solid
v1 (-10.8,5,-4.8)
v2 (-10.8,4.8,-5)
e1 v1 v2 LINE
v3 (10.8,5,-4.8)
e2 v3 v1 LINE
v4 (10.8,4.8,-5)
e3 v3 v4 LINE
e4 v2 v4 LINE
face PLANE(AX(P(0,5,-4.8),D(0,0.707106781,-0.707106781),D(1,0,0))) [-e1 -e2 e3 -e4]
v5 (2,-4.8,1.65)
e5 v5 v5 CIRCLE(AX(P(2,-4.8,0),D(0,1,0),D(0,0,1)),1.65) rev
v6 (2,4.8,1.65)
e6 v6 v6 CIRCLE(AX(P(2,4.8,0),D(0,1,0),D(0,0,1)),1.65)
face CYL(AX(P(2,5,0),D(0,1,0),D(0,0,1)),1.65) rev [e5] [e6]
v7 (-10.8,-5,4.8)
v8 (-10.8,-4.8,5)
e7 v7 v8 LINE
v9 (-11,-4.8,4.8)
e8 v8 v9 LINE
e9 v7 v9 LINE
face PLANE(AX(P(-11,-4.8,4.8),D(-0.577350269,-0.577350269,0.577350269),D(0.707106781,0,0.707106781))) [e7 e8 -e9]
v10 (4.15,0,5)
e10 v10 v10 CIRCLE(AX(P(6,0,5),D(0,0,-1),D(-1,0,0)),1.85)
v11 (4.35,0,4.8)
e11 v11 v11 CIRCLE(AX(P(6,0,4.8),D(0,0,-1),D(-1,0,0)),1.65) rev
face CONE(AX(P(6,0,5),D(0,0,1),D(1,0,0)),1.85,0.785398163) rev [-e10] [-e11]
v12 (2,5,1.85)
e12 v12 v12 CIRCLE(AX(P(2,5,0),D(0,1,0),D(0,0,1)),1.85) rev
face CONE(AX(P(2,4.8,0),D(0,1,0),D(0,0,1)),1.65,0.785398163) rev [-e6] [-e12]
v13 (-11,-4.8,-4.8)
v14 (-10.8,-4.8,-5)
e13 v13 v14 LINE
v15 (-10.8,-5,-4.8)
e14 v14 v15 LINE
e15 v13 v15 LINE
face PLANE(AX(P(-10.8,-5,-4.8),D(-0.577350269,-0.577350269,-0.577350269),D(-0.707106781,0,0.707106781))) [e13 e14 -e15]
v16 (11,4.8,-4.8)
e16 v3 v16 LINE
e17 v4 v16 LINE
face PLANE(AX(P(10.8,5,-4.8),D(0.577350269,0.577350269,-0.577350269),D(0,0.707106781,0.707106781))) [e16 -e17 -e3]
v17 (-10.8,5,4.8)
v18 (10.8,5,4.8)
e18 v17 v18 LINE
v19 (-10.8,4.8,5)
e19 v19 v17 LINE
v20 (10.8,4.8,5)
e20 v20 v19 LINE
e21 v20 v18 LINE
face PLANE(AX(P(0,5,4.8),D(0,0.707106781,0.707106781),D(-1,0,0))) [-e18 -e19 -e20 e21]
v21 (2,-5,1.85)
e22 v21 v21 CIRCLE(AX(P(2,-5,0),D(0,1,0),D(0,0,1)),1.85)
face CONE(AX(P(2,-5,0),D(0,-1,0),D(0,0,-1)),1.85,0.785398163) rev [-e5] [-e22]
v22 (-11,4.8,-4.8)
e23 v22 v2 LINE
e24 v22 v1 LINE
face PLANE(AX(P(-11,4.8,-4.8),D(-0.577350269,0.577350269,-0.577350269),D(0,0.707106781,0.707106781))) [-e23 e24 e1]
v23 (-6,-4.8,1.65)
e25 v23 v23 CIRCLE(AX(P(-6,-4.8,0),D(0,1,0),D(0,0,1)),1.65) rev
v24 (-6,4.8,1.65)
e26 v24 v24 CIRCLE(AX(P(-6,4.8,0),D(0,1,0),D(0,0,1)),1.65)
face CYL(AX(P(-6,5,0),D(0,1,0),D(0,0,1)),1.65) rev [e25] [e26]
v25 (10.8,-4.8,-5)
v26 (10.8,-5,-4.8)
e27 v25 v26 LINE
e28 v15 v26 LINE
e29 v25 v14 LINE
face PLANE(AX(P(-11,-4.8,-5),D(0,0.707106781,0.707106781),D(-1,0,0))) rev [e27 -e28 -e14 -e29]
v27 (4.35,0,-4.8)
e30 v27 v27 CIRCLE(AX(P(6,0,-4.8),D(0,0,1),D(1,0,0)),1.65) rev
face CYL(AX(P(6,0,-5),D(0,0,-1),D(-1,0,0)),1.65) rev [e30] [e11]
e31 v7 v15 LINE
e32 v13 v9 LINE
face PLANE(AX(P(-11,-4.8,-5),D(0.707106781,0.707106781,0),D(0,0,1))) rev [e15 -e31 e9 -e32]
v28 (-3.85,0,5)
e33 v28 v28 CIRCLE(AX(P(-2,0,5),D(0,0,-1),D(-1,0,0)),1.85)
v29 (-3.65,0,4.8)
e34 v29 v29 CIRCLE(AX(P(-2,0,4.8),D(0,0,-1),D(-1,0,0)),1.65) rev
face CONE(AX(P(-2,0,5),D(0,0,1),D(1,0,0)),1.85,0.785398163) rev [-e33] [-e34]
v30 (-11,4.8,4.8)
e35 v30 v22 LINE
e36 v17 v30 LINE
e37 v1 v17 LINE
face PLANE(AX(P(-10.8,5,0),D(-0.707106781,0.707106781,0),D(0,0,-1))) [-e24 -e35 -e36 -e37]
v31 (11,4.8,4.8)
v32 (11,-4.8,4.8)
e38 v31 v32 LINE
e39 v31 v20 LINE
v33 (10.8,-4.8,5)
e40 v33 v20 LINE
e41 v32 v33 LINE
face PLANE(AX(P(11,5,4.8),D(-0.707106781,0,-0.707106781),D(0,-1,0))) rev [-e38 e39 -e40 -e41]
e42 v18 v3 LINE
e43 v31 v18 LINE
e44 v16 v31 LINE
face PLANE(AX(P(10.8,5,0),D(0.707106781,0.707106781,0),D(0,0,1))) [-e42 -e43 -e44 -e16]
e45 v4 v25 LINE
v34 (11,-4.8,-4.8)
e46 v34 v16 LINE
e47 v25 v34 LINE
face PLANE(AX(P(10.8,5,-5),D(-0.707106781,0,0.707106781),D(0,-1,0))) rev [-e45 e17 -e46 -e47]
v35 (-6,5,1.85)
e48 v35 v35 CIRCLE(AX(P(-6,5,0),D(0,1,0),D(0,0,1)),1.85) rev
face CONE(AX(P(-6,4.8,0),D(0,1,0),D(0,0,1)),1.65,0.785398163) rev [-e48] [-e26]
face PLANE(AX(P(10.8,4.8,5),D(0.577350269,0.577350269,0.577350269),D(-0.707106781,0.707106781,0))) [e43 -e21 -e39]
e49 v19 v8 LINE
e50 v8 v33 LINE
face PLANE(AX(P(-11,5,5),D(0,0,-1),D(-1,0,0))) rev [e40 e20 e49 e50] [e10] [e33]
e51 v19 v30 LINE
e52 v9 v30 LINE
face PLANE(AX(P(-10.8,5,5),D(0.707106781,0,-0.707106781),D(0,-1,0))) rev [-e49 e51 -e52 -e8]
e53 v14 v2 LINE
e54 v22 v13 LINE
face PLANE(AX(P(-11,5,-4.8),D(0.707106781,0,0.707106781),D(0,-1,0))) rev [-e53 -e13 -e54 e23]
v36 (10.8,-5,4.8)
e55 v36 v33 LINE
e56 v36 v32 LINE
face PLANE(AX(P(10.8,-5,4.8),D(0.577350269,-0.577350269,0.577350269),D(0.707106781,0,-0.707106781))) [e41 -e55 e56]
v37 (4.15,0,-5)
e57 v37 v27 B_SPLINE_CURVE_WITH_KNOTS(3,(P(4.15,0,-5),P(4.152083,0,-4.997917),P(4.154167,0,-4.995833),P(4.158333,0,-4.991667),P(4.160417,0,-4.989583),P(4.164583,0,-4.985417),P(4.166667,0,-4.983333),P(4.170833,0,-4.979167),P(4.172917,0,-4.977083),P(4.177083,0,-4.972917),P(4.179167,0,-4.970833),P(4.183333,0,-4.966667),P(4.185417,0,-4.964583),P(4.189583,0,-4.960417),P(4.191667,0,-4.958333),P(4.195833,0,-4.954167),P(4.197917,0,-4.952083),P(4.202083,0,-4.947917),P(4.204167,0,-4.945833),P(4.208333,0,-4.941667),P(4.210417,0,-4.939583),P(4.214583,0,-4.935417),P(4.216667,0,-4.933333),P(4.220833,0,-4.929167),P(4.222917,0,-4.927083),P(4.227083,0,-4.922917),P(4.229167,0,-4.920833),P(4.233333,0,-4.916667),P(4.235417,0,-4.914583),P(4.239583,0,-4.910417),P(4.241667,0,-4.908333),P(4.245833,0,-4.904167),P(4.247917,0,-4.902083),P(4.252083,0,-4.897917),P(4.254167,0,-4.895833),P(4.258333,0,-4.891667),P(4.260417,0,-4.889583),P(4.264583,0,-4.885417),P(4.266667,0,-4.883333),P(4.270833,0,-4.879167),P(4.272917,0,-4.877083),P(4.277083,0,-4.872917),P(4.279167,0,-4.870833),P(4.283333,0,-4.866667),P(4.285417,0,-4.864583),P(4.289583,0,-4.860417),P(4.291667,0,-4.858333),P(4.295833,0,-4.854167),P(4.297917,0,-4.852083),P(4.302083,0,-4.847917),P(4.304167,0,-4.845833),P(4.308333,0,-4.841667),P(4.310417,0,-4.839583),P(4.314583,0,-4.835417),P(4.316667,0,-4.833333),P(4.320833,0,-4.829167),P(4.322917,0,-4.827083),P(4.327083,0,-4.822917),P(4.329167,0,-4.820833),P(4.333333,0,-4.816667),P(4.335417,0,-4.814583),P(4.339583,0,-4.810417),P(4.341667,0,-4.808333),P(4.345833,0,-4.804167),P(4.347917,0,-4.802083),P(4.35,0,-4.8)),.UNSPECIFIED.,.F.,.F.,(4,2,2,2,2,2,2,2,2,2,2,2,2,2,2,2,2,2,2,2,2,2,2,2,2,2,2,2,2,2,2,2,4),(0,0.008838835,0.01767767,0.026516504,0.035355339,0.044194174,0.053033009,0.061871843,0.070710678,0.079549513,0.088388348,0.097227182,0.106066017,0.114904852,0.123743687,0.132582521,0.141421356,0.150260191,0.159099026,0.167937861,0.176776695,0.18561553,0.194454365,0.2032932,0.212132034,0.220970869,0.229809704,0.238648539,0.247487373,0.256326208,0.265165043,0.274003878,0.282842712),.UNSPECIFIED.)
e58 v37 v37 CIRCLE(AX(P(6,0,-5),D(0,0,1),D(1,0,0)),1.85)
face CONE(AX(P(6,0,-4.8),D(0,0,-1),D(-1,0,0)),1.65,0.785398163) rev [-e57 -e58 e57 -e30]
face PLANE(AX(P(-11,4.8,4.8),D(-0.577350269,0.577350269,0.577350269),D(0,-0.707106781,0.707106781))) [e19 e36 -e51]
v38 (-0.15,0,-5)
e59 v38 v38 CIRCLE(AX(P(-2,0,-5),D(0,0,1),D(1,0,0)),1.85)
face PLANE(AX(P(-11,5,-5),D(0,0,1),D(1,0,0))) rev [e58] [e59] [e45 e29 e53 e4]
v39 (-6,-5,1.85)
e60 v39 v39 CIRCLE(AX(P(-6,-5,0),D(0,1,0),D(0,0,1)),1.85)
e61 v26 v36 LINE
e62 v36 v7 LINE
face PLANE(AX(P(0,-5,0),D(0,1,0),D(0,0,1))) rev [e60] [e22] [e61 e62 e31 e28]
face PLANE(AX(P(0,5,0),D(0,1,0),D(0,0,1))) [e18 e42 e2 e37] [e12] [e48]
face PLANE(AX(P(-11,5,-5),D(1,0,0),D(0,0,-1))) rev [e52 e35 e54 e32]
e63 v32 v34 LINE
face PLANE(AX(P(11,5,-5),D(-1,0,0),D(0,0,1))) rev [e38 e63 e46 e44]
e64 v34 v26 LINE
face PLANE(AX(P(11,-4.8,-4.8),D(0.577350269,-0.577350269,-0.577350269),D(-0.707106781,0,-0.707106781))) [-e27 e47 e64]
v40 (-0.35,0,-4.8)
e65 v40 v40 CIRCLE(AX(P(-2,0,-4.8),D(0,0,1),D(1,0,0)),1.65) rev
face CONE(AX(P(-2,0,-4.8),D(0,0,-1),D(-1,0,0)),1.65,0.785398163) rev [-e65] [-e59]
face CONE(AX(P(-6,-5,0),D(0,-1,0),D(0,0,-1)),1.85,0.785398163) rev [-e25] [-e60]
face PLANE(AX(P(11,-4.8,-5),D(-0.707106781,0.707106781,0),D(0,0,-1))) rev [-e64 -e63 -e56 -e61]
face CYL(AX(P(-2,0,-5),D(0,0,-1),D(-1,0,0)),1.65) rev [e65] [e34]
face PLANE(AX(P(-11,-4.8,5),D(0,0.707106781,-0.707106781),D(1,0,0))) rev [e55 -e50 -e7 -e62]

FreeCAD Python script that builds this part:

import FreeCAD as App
import Part
import Sketcher
Q = App.Units.Quantity


def add_polygon(sketch, points):
    """Adds a closed chain of lines whose ends are joined by coincident constraints."""
    first, n = sketch.GeometryCount, len(points)
    for a, b in zip(points, points[1:] + points[:1]):
        sketch.addGeometry(Part.LineSegment(App.Vector(*a, 0), App.Vector(*b, 0)), False)
    for i in range(n):
        sketch.addConstraint(Sketcher.Constraint("Coincident", first + i, 2, first + (i + 1) % n, 1))

doc = App.newDocument("Part")
body = doc.addObject("PartDesign::Body", "Body")

# Sketch on XZ plane
sketch1 = doc.addObject("Sketcher::SketchObject", "Sketch")
body.addObject(sketch1)
sketch1.AttachmentSupport = (doc.XZ_Plane, [""])
sketch1.MapMode = "FlatFace"
add_polygon(sketch1, [(-11, -5), (-11, 5), (11, 5), (11, -5)])  # lines 0-3
sketch1.addConstraint([
    Sketcher.Constraint("Vertical", 0),
    Sketcher.Constraint("Horizontal", 1),
    Sketcher.Constraint("Vertical", 2),
    Sketcher.Constraint("Horizontal", 3),
    Sketcher.Constraint("Symmetric", 0, 2, 2, 2, -1, 1),
    Sketcher.Constraint("DistanceX", 1, 1, 1, 2, Q("22 mm")),
    Sketcher.Constraint("DistanceY", 0, 1, 0, 2, Q("10 mm")),
])
pad1 = doc.addObject("PartDesign::Pad", "Pad")
body.addObject(pad1)
pad1.Profile = sketch1
pad1.Length = 10
pad1.Midplane = True

# Sketch on XZ plane
sketch2 = doc.addObject("Sketcher::SketchObject", "Sketch001")
body.addObject(sketch2)
sketch2.AttachmentSupport = (doc.XZ_Plane, [""])
sketch2.MapMode = "FlatFace"
sketch2.AttachmentOffset = App.Placement(App.Vector(0, 0, -5), App.Rotation())
sketch2.addGeometry([
    Part.Circle(App.Vector(-6, 0, 0), App.Vector(0, 0, 1), 1.6),
    Part.Circle(App.Vector(2, 0, 0), App.Vector(0, 0, 1), 1.6),
], False)
sketch2.addConstraint([
    Sketcher.Constraint("Equal", 0, 1),
    Sketcher.Constraint("PointOnObject", 0, 3, -1),
    Sketcher.Constraint("PointOnObject", 1, 3, -1),
    Sketcher.Constraint("Diameter", 0, Q("3.3 mm")),
    Sketcher.Constraint("DistanceX", 0, 3, -1, 1, Q("6 mm")),
    Sketcher.Constraint("DistanceX", -1, 1, 1, 3, Q("2 mm")),
])
doc.recompute()
hole = doc.addObject("PartDesign::Hole", "Hole")
body.addObject(hole)
hole.Profile = sketch2
hole.ThreadType = "None"
hole.Diameter = 3.3
hole.DepthType = "ThroughAll"
hole.Reversed = True

# Sketch on XY plane
sketch3 = doc.addObject("Sketcher::SketchObject", "Sketch002")
body.addObject(sketch3)
sketch3.AttachmentSupport = (doc.XY_Plane, [""])
sketch3.MapMode = "FlatFace"
sketch3.AttachmentOffset = App.Placement(App.Vector(0, 0, -5), App.Rotation())
sketch3.addGeometry([
    Part.Circle(App.Vector(6, 0, 0), App.Vector(0, 0, 1), 1.6),
    Part.Circle(App.Vector(-2, 0, 0), App.Vector(0, 0, 1), 1.6),
], False)
sketch3.addConstraint([
    Sketcher.Constraint("Equal", 0, 1),
    Sketcher.Constraint("PointOnObject", 0, 3, -1),
    Sketcher.Constraint("PointOnObject", 1, 3, -1),
    Sketcher.Constraint("Diameter", 0, Q("3.3 mm")),
    Sketcher.Constraint("DistanceX", -1, 1, 0, 3, Q("6 mm")),
    Sketcher.Constraint("DistanceX", 1, 3, -1, 1, Q("2 mm")),
])
doc.recompute()
hole2 = doc.addObject("PartDesign::Hole", "Hole001")
body.addObject(hole2)
hole2.Profile = sketch3
hole2.ThreadType = "None"
hole2.Diameter = 3.3
hole2.DepthType = "ThroughAll"
hole2.Reversed = True
doc.recompute()

chamfer = doc.addObject("PartDesign::Chamfer", "Chamfer")
body.addObject(chamfer)
chamfer.Base = (hole2, ["Edge1"])
chamfer.UseAllEdges = True
chamfer.Size = 0.2

doc.recompute()
